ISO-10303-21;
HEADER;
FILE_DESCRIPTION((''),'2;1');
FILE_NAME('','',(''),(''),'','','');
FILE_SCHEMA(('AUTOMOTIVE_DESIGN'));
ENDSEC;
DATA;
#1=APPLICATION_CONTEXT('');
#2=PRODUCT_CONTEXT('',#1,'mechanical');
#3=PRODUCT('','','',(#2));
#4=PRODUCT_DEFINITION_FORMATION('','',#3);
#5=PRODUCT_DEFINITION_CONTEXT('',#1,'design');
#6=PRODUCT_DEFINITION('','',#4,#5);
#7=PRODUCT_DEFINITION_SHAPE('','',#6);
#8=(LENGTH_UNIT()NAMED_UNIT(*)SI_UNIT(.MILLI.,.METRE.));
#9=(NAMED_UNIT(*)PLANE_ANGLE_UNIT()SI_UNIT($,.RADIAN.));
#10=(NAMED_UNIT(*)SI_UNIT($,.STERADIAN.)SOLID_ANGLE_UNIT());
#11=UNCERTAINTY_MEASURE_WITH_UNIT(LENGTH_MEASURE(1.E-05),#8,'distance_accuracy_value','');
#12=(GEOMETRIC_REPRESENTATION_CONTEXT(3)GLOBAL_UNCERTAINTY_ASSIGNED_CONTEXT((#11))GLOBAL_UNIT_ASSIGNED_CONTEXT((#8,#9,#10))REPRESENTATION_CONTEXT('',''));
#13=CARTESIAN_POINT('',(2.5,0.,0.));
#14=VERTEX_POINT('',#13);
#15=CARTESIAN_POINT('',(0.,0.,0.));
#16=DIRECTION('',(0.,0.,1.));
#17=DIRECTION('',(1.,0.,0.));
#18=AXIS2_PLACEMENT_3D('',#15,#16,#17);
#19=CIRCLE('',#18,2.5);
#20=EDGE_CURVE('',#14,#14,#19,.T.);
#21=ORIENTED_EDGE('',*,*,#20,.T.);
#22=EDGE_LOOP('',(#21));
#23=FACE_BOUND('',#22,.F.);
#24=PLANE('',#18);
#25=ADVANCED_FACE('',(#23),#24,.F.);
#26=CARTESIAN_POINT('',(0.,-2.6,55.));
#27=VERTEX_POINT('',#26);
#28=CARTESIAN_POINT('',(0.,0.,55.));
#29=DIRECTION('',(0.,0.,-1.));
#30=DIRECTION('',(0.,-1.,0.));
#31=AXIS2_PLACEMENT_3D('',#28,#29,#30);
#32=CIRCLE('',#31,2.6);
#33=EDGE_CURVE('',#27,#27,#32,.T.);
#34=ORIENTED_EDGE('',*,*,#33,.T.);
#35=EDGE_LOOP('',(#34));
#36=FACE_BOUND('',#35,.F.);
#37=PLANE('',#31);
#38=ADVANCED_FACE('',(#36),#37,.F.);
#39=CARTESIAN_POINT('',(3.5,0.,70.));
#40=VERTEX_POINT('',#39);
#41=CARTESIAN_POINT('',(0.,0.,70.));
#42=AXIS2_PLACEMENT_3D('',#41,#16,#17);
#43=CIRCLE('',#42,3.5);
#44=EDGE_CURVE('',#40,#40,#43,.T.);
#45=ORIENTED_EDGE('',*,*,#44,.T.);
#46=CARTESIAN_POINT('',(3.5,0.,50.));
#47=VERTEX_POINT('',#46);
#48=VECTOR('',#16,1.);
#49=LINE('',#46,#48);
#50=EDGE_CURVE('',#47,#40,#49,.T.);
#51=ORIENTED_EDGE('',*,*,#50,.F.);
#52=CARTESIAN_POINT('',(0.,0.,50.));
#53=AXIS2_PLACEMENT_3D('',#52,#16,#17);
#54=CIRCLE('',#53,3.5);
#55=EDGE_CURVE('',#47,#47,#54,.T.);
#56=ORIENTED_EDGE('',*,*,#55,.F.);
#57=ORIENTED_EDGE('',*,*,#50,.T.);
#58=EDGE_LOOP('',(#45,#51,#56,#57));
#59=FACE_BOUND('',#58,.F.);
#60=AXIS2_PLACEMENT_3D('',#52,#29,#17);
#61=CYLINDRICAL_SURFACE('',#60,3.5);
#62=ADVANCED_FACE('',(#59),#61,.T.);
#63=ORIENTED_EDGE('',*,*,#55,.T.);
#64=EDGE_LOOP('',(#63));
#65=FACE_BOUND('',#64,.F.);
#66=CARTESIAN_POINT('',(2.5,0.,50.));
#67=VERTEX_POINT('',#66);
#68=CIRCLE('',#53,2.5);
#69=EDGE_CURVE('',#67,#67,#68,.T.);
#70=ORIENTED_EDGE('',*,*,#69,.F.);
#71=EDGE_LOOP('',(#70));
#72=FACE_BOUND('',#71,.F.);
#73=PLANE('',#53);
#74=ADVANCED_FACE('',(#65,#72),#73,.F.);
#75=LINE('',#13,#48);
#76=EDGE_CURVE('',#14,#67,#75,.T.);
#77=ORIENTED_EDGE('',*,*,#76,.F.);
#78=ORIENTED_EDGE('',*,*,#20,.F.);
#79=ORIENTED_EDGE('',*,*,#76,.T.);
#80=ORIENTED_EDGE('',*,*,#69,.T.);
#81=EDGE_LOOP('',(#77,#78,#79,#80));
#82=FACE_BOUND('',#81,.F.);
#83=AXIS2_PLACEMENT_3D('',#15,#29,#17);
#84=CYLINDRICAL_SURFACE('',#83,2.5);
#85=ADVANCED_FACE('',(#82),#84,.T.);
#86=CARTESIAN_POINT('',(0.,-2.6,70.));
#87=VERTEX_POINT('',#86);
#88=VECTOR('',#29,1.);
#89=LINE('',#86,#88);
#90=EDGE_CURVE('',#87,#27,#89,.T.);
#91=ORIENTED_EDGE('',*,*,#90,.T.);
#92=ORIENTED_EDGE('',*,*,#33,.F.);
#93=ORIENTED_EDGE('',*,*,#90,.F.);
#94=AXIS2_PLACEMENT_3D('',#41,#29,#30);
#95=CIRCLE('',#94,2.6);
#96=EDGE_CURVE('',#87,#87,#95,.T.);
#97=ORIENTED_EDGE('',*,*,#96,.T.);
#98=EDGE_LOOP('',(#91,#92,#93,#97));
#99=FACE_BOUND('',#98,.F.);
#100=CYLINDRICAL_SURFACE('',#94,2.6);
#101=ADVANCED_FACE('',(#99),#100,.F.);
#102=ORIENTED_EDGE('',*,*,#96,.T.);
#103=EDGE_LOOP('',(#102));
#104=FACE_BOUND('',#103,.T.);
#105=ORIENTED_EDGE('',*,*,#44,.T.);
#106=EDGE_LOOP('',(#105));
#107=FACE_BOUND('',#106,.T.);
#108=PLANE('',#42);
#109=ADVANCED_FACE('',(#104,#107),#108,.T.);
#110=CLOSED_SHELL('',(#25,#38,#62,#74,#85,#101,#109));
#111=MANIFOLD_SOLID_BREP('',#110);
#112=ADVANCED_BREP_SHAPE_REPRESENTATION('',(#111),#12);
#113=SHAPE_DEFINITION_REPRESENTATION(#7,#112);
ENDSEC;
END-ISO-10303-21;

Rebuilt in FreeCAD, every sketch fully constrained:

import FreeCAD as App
import Part
import Sketcher
Q = App.Units.Quantity

doc = App.newDocument("Part")
params = doc.addObject("Spreadsheet::Sheet", "Params")
for row, (alias, value) in enumerate([
    ("sketch1_diameter", "5 mm"),
    ("pad1_length", "50 mm"),
    ("sketch2_diameter", "7 mm"),
    ("pad2_length", "20 mm"),
    ("sketch3_diameter", "5.2 mm"),
    ("hole_diameter", "5.2 mm"),
    ("hole_depth", "15 mm"),
], start=1):
    params.set(f"A{row}", alias)
    params.set(f"B{row}", "=" + value)
    params.setAlias(f"B{row}", alias)

body = doc.addObject("PartDesign::Body", "Body")

sketch1 = doc.addObject("Sketcher::SketchObject", "Sketch")
body.addObject(sketch1)
sketch1.AttachmentSupport = (doc.XY_Plane, [""])
sketch1.MapMode = "FlatFace"
sketch1.addGeometry(Part.Circle(App.Vector(0, 0, 0), App.Vector(0, 0, 1), 2.5), False)
sketch1.addConstraint([
    Sketcher.Constraint("Coincident", 0, 3, -1, 1),
    Sketcher.Constraint("Diameter", 0, Q("5 mm")),
])
sketch1.setExpression("Constraints[1]", "Params.sketch1_diameter")
pad1 = doc.addObject("PartDesign::Pad", "Pad")
body.addObject(pad1)
pad1.Profile = sketch1
pad1.setExpression("Length", "Params.pad1_length")

sketch2 = doc.addObject("Sketcher::SketchObject", "Sketch001")
body.addObject(sketch2)
sketch2.AttachmentSupport = (doc.XY_Plane, [""])
sketch2.MapMode = "FlatFace"
sketch2.AttachmentOffset = App.Placement(App.Vector(0, 0, 50), App.Rotation())
sketch2.addGeometry(Part.Circle(App.Vector(0, 0, 0), App.Vector(0, 0, 1), 3.5), False)
sketch2.addConstraint([
    Sketcher.Constraint("Coincident", 0, 3, -1, 1),
    Sketcher.Constraint("Diameter", 0, Q("7 mm")),
])
sketch2.setExpression("Constraints[1]", "Params.sketch2_diameter")
pad2 = doc.addObject("PartDesign::Pad", "Pad001")
body.addObject(pad2)
pad2.Profile = sketch2
pad2.setExpression("Length", "Params.pad2_length")

sketch3 = doc.addObject("Sketcher::SketchObject", "Sketch002")
body.addObject(sketch3)
sketch3.AttachmentSupport = (doc.XY_Plane, [""])
sketch3.MapMode = "FlatFace"
sketch3.AttachmentOffset = App.Placement(App.Vector(0, 0, 70), App.Rotation())
sketch3.addGeometry(Part.Circle(App.Vector(0, 0, 0), App.Vector(0, 0, 1), 2.6), False)
sketch3.addConstraint([
    Sketcher.Constraint("Coincident", 0, 3, -1, 1),
    Sketcher.Constraint("Diameter", 0, Q("5.2 mm")),
])
sketch3.setExpression("Constraints[1]", "Params.sketch3_diameter")
doc.recompute()
hole = doc.addObject("PartDesign::Hole", "Hole")
body.addObject(hole)
hole.Profile = sketch3
hole.ThreadType = "None"
hole.setExpression("Diameter", "Params.hole_diameter")
hole.DepthType = "Dimension"
hole.setExpression("Depth", "Params.hole_depth")
hole.DrillPoint = "Flat"

doc.recompute()
